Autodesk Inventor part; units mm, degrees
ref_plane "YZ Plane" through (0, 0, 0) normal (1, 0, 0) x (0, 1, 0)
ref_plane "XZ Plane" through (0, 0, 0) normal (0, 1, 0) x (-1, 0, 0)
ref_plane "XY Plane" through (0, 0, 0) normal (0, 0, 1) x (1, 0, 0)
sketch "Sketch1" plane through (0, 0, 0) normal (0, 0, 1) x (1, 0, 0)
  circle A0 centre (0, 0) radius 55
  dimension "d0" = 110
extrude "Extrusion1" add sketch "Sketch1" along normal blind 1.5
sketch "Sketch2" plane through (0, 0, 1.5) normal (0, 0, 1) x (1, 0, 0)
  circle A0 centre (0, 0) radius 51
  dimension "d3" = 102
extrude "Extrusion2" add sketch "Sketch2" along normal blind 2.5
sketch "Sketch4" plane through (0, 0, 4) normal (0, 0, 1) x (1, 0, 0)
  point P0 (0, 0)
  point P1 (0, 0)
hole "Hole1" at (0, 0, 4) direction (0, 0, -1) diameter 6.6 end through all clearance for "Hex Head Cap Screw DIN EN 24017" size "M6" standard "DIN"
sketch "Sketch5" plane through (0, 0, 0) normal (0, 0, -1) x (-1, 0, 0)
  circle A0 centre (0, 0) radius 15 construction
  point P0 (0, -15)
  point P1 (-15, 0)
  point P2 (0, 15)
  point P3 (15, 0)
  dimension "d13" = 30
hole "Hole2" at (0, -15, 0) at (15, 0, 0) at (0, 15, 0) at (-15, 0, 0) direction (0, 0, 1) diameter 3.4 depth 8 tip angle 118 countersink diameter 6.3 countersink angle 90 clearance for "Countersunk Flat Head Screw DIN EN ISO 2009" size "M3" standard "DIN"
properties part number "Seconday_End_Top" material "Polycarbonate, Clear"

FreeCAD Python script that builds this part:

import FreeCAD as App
import Part
import Sketcher
from FreeCAD import Vector
Q = App.Units.Quantity

doc = App.newDocument("Part")
params = doc.addObject("Spreadsheet::Sheet", "Params")
for row, (alias, value) in enumerate([
    ("sketch1_diameter", "110 mm"),
    ("pad1_length", "1.5 mm"),
    ("sketch2_diameter", "102 mm"),
    ("pad2_length", "2.5 mm"),
    ("sketch3_diameter", "6.6 mm"),
    ("hole_diameter", "6.6 mm"),
    ("sketch4_diameter", "3.4 mm"),
    ("hole2_diameter", "3.4 mm"),
    ("hole2_depth", "8 mm"),
    ("hole2_csink_diameter", "6.3 mm"),
], start=1):
    params.set(f"A{row}", alias)
    params.set(f"B{row}", "=" + value)
    params.setAlias(f"B{row}", alias)

body = doc.addObject("PartDesign::Body", "Body")

# Sketch on XY plane
sketch1 = body.newObject("Sketcher::SketchObject", "Sketch")
sketch1.AttachmentSupport = (doc.getObject("XY_Plane"), [""])
sketch1.MapMode = "FlatFace"
sketch1.addGeometry(Part.Circle(Vector(0, 0, 0), Vector(0, 0, 1), 55), False)
sketch1.addConstraint([
    Sketcher.Constraint("Coincident", 0, 3, -1, 1),
    Sketcher.Constraint("Diameter", 0, Q("110 mm")),
])
sketch1.setExpression("Constraints[1]", "Params.sketch1_diameter")
pad1 = body.newObject("PartDesign::Pad", "Pad")
pad1.Profile = sketch1
pad1.setExpression("Length", "Params.pad1_length")

# Sketch on XY plane
sketch2 = body.newObject("Sketcher::SketchObject", "Sketch001")
sketch2.AttachmentSupport = (doc.getObject("XY_Plane"), [""])
sketch2.MapMode = "FlatFace"
sketch2.AttachmentOffset = App.Placement(Vector(0, 0, 1.5), App.Rotation())
sketch2.addGeometry(Part.Circle(Vector(0, 0, 0), Vector(0, 0, 1), 51), False)
sketch2.addConstraint([
    Sketcher.Constraint("Coincident", 0, 3, -1, 1),
    Sketcher.Constraint("Diameter", 0, Q("102 mm")),
])
sketch2.setExpression("Constraints[1]", "Params.sketch2_diameter")
pad2 = body.newObject("PartDesign::Pad", "Pad001")
pad2.Profile = sketch2
pad2.setExpression("Length", "Params.pad2_length")

# Sketch on XY plane
sketch3 = body.newObject("Sketcher::SketchObject", "Sketch002")
sketch3.AttachmentSupport = (doc.getObject("XY_Plane"), [""])
sketch3.MapMode = "FlatFace"
sketch3.AttachmentOffset = App.Placement(Vector(0, 0, 4), App.Rotation())
sketch3.addGeometry(Part.Circle(Vector(0, 0, 0), Vector(0, 0, 1), 3.3), False)
sketch3.addConstraint([
    Sketcher.Constraint("Coincident", 0, 3, -1, 1),
    Sketcher.Constraint("Diameter", 0, Q("6.6 mm")),
])
sketch3.setExpression("Constraints[1]", "Params.sketch3_diameter")
doc.recompute()
hole = body.newObject("PartDesign::Hole", "Hole")
hole.Profile = sketch3
hole.ThreadType = "None"
hole.setExpression("Diameter", "Params.hole_diameter")
hole.DepthType = "ThroughAll"

# Sketch on XY plane
sketch4 = body.newObject("Sketcher::SketchObject", "Sketch003")
sketch4.AttachmentSupport = (doc.getObject("XY_Plane"), [""])
sketch4.MapMode = "FlatFace"
sketch4.addGeometry([
    Part.Circle(Vector(0, -15, 0), Vector(0, 0, 1), 1.7),
    Part.Circle(Vector(15, 0, 0), Vector(0, 0, 1), 1.7),
    Part.Circle(Vector(0, 15, 0), Vector(0, 0, 1), 1.7),
    Part.Circle(Vector(-15, 0, 0), Vector(0, 0, 1), 1.7),
], False)
sketch4.addConstraint([
    Sketcher.Constraint("Equal", 0, 1),
    Sketcher.Constraint("Equal", 1, 2),
    Sketcher.Constraint("Equal", 2, 3),
    Sketcher.Constraint("Symmetric", 0, 3, 2, 3, -1, 1),
    Sketcher.Constraint("Symmetric", 1, 3, 3, 3, -1, 1),
    Sketcher.Constraint("PointOnObject", 0, 3, -2),
    Sketcher.Constraint("PointOnObject", 1, 3, -1),
    Sketcher.Constraint("Diameter", 0, Q("3.4 mm")),
    Sketcher.Constraint("DistanceY", 0, 3, -1, 1, Q("15 mm")),
    Sketcher.Constraint("DistanceX", -1, 1, 1, 3, Q("15 mm")),
])
sketch4.setExpression("Constraints[7]", "Params.sketch4_diameter")
doc.recompute()
hole2 = body.newObject("PartDesign::Hole", "Hole001")
hole2.Profile = sketch4
hole2.ThreadType = "None"
hole2.setExpression("Diameter", "Params.hole2_diameter")
hole2.DepthType = "Dimension"
hole2.setExpression("Depth", "Params.hole2_depth")
hole2.DrillPoint = "Angled"
hole2.DrillPointAngle = 118
hole2.HoleCutType = "Countersink"
hole2.setExpression("HoleCutDiameter", "Params.hole2_csink_diameter")
hole2.HoleCutCountersinkAngle = 90
hole2.Reversed = True

doc.recompute()
